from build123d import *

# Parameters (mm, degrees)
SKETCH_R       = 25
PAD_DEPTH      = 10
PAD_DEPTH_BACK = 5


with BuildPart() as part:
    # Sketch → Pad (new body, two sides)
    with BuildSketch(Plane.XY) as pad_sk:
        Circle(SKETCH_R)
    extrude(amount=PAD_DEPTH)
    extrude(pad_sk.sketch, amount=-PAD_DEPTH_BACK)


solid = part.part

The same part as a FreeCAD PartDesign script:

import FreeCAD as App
import Part
import Sketcher
from FreeCAD import Vector
Q = App.Units.Quantity

doc = App.newDocument("Part")
body = doc.addObject("PartDesign::Body", "Body")

# Sketch on XY plane
sketch1 = doc.addObject("Sketcher::SketchObject", "Sketch")
body.addObject(sketch1)
sketch1.AttachmentSupport = (doc.XY_Plane, [""])
sketch1.MapMode = "FlatFace"
sketch1.addGeometry(Part.Circle(Vector(0, 0, 0), Vector(0, 0, 1), 25), False)
sketch1.addConstraint(Sketcher.Constraint("Coincident", 0, 3, -1, 1))
sketch1.addConstraint(Sketcher.Constraint("Diameter", 0, Q("50 mm")))
pad1 = doc.addObject("PartDesign::Pad", "Pad")
body.addObject(pad1)
pad1.Profile = sketch1
pad1.Type = "TwoLengths"
pad1.Length = 10
pad1.Length2 = 5

doc.recompute()
